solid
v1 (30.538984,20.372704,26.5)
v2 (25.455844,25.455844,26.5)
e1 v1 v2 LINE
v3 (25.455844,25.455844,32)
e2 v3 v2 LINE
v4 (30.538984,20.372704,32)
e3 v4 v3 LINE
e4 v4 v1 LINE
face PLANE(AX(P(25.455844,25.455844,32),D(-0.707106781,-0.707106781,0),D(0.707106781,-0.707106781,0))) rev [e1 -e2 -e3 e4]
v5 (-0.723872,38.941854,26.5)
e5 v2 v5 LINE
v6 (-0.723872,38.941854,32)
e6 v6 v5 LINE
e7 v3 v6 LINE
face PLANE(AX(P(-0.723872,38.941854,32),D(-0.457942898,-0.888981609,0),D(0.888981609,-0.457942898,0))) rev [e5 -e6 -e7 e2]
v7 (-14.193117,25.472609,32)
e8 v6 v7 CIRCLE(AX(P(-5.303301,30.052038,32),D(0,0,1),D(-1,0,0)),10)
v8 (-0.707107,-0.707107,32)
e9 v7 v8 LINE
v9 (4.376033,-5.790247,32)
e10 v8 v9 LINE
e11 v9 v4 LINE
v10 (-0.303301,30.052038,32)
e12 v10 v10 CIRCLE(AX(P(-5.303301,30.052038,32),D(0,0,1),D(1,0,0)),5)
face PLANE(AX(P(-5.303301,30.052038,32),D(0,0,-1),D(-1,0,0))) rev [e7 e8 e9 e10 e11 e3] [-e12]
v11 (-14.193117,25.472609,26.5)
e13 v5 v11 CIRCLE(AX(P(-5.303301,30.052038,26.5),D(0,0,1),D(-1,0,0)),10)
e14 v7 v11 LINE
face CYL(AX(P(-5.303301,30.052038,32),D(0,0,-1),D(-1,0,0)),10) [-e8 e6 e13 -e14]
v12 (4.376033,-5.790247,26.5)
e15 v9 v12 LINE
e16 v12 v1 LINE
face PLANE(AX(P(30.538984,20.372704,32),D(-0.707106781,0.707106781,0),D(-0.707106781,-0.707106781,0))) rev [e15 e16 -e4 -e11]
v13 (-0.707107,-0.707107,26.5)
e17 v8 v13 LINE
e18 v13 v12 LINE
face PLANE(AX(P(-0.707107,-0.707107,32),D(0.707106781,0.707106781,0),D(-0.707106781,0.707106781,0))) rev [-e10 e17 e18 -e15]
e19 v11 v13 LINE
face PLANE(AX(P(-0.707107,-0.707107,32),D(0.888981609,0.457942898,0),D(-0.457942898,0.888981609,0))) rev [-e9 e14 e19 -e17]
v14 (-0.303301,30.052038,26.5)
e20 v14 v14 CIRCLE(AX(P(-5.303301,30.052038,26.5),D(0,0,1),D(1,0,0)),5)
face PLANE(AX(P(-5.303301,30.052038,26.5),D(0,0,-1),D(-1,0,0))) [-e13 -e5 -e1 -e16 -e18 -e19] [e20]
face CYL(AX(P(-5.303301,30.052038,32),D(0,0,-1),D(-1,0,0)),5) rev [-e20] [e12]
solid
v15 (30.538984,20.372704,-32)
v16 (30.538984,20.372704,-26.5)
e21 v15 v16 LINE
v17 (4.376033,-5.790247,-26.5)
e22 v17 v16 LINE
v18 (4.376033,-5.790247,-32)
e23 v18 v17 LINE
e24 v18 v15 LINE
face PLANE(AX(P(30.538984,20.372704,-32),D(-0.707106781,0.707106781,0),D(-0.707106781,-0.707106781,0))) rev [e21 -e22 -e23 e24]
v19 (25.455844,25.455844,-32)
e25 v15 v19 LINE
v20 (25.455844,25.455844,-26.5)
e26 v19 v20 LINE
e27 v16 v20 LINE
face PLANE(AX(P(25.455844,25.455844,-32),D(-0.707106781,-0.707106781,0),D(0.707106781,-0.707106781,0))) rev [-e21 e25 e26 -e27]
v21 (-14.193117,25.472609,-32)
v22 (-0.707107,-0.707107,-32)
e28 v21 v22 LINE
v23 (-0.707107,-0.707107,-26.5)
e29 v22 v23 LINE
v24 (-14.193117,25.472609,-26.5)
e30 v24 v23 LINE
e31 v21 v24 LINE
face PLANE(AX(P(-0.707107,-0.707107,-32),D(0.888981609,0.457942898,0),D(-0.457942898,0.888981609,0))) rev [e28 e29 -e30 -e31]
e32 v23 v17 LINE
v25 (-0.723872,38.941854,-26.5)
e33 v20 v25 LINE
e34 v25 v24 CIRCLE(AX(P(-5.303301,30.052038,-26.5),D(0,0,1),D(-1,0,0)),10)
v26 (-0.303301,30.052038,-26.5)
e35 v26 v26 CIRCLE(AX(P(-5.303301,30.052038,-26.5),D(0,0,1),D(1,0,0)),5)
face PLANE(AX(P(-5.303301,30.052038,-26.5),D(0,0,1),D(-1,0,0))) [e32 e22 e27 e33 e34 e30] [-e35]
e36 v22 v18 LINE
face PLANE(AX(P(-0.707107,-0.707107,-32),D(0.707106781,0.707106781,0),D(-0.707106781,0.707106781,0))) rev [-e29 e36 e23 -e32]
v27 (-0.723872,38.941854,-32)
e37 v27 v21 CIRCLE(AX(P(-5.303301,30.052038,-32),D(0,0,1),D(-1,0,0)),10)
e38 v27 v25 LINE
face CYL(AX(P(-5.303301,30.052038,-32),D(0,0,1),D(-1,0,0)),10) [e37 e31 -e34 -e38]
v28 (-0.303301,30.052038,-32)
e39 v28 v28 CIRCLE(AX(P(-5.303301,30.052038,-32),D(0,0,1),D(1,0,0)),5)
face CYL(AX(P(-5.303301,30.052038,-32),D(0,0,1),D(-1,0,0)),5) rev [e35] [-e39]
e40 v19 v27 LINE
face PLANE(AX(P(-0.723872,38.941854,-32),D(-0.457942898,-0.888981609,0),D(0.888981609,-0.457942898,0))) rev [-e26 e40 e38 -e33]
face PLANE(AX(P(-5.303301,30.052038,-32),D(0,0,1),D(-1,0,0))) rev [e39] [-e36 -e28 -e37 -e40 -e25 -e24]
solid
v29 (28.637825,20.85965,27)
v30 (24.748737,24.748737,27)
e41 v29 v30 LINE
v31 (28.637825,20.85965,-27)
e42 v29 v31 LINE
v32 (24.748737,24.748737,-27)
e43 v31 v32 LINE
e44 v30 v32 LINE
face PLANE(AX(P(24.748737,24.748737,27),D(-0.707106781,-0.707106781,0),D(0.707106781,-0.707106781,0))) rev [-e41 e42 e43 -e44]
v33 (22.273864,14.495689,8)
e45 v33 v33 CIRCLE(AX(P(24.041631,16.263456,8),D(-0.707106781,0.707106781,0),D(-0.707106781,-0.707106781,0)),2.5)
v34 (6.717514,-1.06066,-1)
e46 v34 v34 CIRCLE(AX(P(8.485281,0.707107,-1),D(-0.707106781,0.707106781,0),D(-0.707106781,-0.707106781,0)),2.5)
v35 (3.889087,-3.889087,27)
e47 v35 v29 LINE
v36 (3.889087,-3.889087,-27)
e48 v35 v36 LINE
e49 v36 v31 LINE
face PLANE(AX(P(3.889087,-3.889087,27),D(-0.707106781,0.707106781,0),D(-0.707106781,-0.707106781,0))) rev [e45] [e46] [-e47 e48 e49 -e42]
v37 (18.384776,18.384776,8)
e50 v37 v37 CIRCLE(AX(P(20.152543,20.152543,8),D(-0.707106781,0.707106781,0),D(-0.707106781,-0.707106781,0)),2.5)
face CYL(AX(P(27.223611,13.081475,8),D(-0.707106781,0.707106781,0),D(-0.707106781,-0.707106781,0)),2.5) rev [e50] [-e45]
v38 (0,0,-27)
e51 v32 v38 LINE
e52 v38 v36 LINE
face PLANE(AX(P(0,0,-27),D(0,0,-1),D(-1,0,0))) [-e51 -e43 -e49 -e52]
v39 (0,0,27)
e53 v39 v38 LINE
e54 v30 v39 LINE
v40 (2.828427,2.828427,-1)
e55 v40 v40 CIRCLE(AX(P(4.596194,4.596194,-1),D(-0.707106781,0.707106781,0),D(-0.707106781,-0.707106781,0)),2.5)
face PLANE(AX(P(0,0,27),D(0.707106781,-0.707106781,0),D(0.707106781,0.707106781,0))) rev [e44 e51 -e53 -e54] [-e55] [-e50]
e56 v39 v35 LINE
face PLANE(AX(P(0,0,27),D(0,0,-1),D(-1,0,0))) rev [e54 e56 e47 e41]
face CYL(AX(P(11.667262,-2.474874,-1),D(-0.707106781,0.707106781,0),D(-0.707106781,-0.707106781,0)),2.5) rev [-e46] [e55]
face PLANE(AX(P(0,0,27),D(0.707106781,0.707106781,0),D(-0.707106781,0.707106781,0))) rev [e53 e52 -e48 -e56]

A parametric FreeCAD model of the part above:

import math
import FreeCAD as App
import Part
import Sketcher
from FreeCAD import Vector
Q = App.Units.Quantity

doc = App.newDocument("Part")
body = doc.addObject("PartDesign::Body", "Body")

# Sketch on XY plane
sketch1 = body.newObject("Sketcher::SketchObject", "Sketch")
sketch1.AttachmentSupport = (doc.getObject("XY_Plane"), [""])
sketch1.MapMode = "FlatFace"
sketch1.addGeometry([
    Part.LineSegment(Vector(0, 0, 0), Vector(4, -4, 0)),
    Part.LineSegment(Vector(4, -4, 0), Vector(29, 21, 0)),
    Part.LineSegment(Vector(29, 21, 0), Vector(25, 25, 0)),
    Part.LineSegment(Vector(25, 25, 0), Vector(0, 0, 0)),
], False)
sketch1.addConstraint([
    Sketcher.Constraint("Coincident", 0, 2, 1, 1),
    Sketcher.Constraint("Coincident", 1, 2, 2, 1),
    Sketcher.Constraint("Coincident", 2, 2, 3, 1),
    Sketcher.Constraint("Coincident", 3, 2, 0, 1),
    Sketcher.Constraint("Coincident", 3, 2, -1, 1),
    Sketcher.Constraint("Perpendicular", 0, 1),
    Sketcher.Constraint("Perpendicular", 1, 2),
    Sketcher.Constraint("Perpendicular", 2, 3),
    Sketcher.Constraint("Angle", 0, Q("-45 deg")),
    Sketcher.Constraint("Distance", 1, 35.0),
    Sketcher.Constraint("Distance", 0, 5.5),
])
pad1 = body.newObject("PartDesign::Pad", "Pad")
pad1.Profile = sketch1
pad1.Length = 54
pad1.Midplane = True

# Sketch on an angled plane
sketch2 = body.newObject("Sketcher::SketchObject", "Sketch001")
sketch2.Placement = App.Placement(Vector(0, 0, 0), App.Rotation(Vector(0, 0, 1), Vector(0.707106781, 0.707106781, 0), Vector(-0.707106781, 0.707106781, 0), "ZXY"))
sketch2.addGeometry([
    Part.Circle(Vector(8, 28.5, 0), Vector(0, 0, 1), 2.5),
    Part.Circle(Vector(-1, 6.5, 0), Vector(0, 0, 1), 2.5),
], False)
sketch2.addConstraint([
    Sketcher.Constraint("Equal", 0, 1),
    Sketcher.Constraint("Diameter", 0, 5.0),
    Sketcher.Constraint("DistanceX", -1, 1, 0, 3, 8.0),
    Sketcher.Constraint("DistanceX", 1, 3, -1, 1, 1.0),
    Sketcher.Constraint("DistanceY", 1, 3, 0, 3, 22.0),
    Sketcher.Constraint("DistanceY", -1, 1, 0, 3, 28.5),
])
pocket1 = body.newObject("PartDesign::Pocket", "Pocket")
pocket1.Profile = sketch2
pocket1.Length = 10
body2 = doc.addObject("PartDesign::Body", "Body001")

# Sketch on XY plane
sketch3 = body2.newObject("Sketcher::SketchObject", "Sketch002")
sketch3.AttachmentSupport = (doc.getObject("XY_Plane001"), [""])
sketch3.MapMode = "FlatFace"
sketch3.AttachmentOffset = App.Placement(Vector(0, 0, 26.5), App.Rotation())
sketch3.addGeometry([
    Part.LineSegment(Vector(-14, 25, 0), Vector(-1, -1, 0)),  # 0
    Part.LineSegment(Vector(-1, -1, 0), Vector(4, -6, 0)),  # 1
    Part.LineSegment(Vector(4, -6, 0), Vector(31, 20, 0)),  # 2
    Part.LineSegment(Vector(31, 20, 0), Vector(25, 25, 0)),  # 3
    Part.LineSegment(Vector(25, 25, 0), Vector(-1, 39, 0)),  # 4
    Part.ArcOfCircle(Part.Circle(Vector(-5, 30, 0), Vector(0, 0, 1), 10), math.radians(63), math.radians(207)),  # 5
    Part.Circle(Vector(-5, 30, 0), Vector(0, 0, 1), 5),  # 6
], False)
sketch3.addConstraint([
    Sketcher.Constraint("Coincident", 0, 2, 1, 1),
    Sketcher.Constraint("Coincident", 1, 2, 2, 1),
    Sketcher.Constraint("Coincident", 2, 2, 3, 1),
    Sketcher.Constraint("Coincident", 3, 2, 4, 1),
    Sketcher.Constraint("Tangent", 4, 2, 5, 1),
    Sketcher.Constraint("Tangent", 5, 2, 0, 1),
    Sketcher.Constraint("Coincident", 6, 3, 5, 3),
    Sketcher.Constraint("Perpendicular", 1, 2),
    Sketcher.Constraint("Perpendicular", 2, 3),
    Sketcher.Constraint("Equal", 1, 3),
    Sketcher.Constraint("Equal", 0, 4),
    Sketcher.Constraint("Diameter", 6, 10.0),
    Sketcher.Constraint("Radius", 5, 10.0),
    Sketcher.Constraint("Angle", 1, Q("-45 deg")),
    Sketcher.Constraint("Distance", 2, 37.0),
    Sketcher.Constraint("DistanceX", 5, 3, -1, 1, 5.303301),
    Sketcher.Constraint("Distance", 0, 29.449109),
    Sketcher.Constraint("DistanceY", -1, 1, 5, 3, 30.052038),
    Sketcher.Constraint("DistanceX", 0, 2, 1, 2, 5.08314),
])
pad2 = body2.newObject("PartDesign::Pad", "Pad001")
pad2.Profile = sketch3
pad2.Length = 5.5
body3 = doc.addObject("PartDesign::Body", "Body002")
doc.recompute()

mirroring = doc.addObject("Part::Mirroring", "Mirroring")
mirroring.Source = body2
mirroring.Base = Vector(0, 0, 0)
mirroring.Normal = Vector(0, 0, 1)
body3.BaseFeature = mirroring
doc.recompute()
mirroring.Visibility = False

doc.recompute()
